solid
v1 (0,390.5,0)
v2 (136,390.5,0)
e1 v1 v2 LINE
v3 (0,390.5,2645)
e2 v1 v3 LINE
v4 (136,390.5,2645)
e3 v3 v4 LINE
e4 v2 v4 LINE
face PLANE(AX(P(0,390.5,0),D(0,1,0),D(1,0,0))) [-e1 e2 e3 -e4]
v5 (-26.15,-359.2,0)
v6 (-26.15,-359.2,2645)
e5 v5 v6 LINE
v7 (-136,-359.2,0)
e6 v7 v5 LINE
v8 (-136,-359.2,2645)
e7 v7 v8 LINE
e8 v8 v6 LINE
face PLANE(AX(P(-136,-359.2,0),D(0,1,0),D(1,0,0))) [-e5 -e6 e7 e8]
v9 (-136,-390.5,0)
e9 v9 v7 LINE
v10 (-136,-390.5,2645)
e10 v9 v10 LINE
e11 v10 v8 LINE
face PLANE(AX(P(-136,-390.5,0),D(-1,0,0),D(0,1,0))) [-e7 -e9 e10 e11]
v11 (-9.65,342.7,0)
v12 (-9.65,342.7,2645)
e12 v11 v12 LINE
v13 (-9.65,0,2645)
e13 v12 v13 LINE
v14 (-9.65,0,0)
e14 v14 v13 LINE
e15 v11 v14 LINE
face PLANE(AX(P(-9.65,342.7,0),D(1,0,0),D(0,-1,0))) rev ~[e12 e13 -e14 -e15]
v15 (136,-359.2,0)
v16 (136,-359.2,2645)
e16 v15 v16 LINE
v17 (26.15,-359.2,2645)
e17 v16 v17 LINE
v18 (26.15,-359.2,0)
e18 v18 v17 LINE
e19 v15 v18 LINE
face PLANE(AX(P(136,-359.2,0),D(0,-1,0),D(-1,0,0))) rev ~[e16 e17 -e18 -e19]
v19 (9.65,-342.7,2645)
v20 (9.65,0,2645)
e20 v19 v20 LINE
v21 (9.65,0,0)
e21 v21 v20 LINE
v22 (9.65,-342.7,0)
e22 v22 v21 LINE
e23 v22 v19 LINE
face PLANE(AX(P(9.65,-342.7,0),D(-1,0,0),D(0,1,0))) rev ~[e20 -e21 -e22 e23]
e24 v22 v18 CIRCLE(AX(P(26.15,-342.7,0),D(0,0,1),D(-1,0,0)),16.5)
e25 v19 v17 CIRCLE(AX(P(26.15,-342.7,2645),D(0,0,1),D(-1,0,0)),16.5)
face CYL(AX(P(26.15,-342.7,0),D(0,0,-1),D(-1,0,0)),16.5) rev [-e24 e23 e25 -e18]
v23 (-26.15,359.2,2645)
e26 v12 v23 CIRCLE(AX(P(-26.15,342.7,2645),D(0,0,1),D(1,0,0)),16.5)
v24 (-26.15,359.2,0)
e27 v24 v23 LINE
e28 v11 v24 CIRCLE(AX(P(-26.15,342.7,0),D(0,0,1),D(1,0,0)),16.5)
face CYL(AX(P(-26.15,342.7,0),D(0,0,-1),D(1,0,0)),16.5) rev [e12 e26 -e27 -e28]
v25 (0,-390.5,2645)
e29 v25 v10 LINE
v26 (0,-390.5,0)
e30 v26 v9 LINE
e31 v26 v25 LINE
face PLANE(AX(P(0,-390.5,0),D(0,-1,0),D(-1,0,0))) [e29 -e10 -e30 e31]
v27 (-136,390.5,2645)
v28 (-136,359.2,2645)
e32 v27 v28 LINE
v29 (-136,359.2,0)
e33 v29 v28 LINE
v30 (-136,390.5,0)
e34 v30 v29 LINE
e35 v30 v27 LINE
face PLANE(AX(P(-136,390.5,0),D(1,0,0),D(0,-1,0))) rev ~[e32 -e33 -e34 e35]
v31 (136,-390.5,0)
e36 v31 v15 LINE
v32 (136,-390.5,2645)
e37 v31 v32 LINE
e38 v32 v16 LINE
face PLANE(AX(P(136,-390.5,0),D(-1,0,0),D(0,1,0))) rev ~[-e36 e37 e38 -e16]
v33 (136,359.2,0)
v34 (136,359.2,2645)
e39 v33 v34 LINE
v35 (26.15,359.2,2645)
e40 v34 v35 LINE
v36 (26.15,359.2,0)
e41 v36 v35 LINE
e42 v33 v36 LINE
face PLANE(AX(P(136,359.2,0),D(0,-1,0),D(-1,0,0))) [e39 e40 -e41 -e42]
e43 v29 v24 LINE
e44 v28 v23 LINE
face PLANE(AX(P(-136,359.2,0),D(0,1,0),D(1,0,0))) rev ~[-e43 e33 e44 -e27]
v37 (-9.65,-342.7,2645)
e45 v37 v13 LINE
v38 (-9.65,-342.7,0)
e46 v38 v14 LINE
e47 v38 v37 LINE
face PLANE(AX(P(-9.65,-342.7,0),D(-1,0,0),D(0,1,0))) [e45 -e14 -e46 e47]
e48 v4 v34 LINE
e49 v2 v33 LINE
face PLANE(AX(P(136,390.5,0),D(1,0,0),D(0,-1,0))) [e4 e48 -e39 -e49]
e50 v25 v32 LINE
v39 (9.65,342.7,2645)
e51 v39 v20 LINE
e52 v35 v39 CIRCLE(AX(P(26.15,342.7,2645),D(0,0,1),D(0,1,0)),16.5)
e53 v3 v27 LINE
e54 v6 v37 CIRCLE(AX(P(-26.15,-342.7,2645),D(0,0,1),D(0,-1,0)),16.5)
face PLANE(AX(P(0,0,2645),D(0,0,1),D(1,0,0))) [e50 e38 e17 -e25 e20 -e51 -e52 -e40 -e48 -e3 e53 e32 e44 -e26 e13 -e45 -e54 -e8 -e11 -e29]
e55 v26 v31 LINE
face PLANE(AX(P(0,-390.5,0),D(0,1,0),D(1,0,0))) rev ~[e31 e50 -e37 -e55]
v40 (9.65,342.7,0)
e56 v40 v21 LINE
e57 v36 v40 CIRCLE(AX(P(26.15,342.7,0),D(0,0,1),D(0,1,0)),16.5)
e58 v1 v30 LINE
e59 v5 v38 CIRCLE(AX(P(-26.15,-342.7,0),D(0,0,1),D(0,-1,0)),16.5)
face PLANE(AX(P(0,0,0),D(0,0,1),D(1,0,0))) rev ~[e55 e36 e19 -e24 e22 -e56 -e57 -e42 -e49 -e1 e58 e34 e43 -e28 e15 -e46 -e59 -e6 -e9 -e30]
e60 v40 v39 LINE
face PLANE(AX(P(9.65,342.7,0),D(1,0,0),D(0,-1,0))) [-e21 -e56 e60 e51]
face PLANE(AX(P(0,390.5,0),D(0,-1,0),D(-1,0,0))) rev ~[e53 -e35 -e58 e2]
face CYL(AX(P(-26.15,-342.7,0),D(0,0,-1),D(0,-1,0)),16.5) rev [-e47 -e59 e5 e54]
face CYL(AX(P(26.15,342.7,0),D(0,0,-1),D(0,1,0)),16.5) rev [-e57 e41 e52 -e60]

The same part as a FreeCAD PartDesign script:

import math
import FreeCAD as App
import Part
import Sketcher

doc = App.newDocument("Part")
params = doc.addObject("Spreadsheet::Sheet", "Params")
for row, (alias, value) in enumerate([
    ("sketch1_radius", "16.5 mm"),
    ("sketch1_height", "31.3 mm"),
    ("pad1_length", "2645 mm"),
], start=1):
    params.set(f"A{row}", alias)
    params.set(f"B{row}", "=" + value)
    params.setAlias(f"B{row}", alias)

body = doc.addObject("PartDesign::Body", "Body")

# Sketch on XY plane
sketch1 = doc.addObject("Sketcher::SketchObject", "Sketch")
body.addObject(sketch1)
sketch1.AttachmentSupport = (doc.XY_Plane, [""])
sketch1.MapMode = "FlatFace"
sketch1.addGeometry([
    Part.LineSegment(App.Vector(-136, -359, 0), App.Vector(-136, -390, 0)),  # 0
    Part.LineSegment(App.Vector(-136, -390, 0), App.Vector(136, -390, 0)),  # 1
    Part.LineSegment(App.Vector(136, -390, 0), App.Vector(136, -359, 0)),  # 2
    Part.LineSegment(App.Vector(136, -359, 0), App.Vector(26, -359, 0)),  # 3
    Part.ArcOfCircle(Part.Circle(App.Vector(26, -343, 0), App.Vector(0, 0, 1), 16), math.radians(180), math.radians(270)),  # 4
    Part.LineSegment(App.Vector(10, -343, 0), App.Vector(10, 343, 0)),  # 5
    Part.ArcOfCircle(Part.Circle(App.Vector(26, 343, 0), App.Vector(0, 0, 1), 16), math.radians(90), math.radians(180)),  # 6
    Part.LineSegment(App.Vector(26, 359, 0), App.Vector(136, 359, 0)),  # 7
    Part.LineSegment(App.Vector(136, 359, 0), App.Vector(136, 390, 0)),  # 8
    Part.LineSegment(App.Vector(136, 390, 0), App.Vector(-136, 390, 0)),  # 9
    Part.LineSegment(App.Vector(-136, 390, 0), App.Vector(-136, 359, 0)),  # 10
    Part.LineSegment(App.Vector(-136, 359, 0), App.Vector(-26, 359, 0)),  # 11
    Part.ArcOfCircle(Part.Circle(App.Vector(-26, 343, 0), App.Vector(0, 0, 1), 16), math.radians(0), math.radians(90)),  # 12
    Part.LineSegment(App.Vector(-10, 343, 0), App.Vector(-10, -343, 0)),  # 13
    Part.ArcOfCircle(Part.Circle(App.Vector(-26, -343, 0), App.Vector(0, 0, 1), 16), math.radians(-90), math.radians(0)),  # 14
    Part.LineSegment(App.Vector(-26, -359, 0), App.Vector(-136, -359, 0)),  # 15
], False)
sketch1.addConstraint([
    Sketcher.Constraint("Coincident", 0, 2, 1, 1),
    Sketcher.Constraint("Coincident", 1, 2, 2, 1),
    Sketcher.Constraint("Coincident", 2, 2, 3, 1),
    Sketcher.Constraint("Tangent", 3, 2, 4, 2),
    Sketcher.Constraint("Tangent", 4, 1, 5, 1),
    Sketcher.Constraint("Tangent", 5, 2, 6, 2),
    Sketcher.Constraint("Tangent", 6, 1, 7, 1),
    Sketcher.Constraint("Coincident", 7, 2, 8, 1),
    Sketcher.Constraint("Coincident", 8, 2, 9, 1),
    Sketcher.Constraint("Coincident", 9, 2, 10, 1),
    Sketcher.Constraint("Coincident", 10, 2, 11, 1),
    Sketcher.Constraint("Tangent", 11, 2, 12, 2),
    Sketcher.Constraint("Tangent", 12, 1, 13, 1),
    Sketcher.Constraint("Tangent", 13, 2, 14, 2),
    Sketcher.Constraint("Tangent", 14, 1, 15, 1),
    Sketcher.Constraint("Coincident", 15, 2, 0, 1),
    Sketcher.Constraint("Vertical", 0),
    Sketcher.Constraint("Horizontal", 1),
    Sketcher.Constraint("Vertical", 2),
    Sketcher.Constraint("Horizontal", 3),
    Sketcher.Constraint("Vertical", 5),
    Sketcher.Constraint("Horizontal", 7),
    Sketcher.Constraint("Vertical", 8),
    Sketcher.Constraint("Horizontal", 9),
    Sketcher.Constraint("Vertical", 10),
    Sketcher.Constraint("Horizontal", 11),
    Sketcher.Constraint("Vertical", 13),
    Sketcher.Constraint("Horizontal", 15),
    Sketcher.Constraint("Equal", 4, 6),
    Sketcher.Constraint("Equal", 6, 12),
    Sketcher.Constraint("Equal", 12, 14),
    Sketcher.Constraint("Symmetric", 4, 3, 12, 3, -1, 1),
    Sketcher.Constraint("Symmetric", 0, 2, 8, 2, -1, 1),
    Sketcher.Constraint("Symmetric", 7, 2, 10, 2, -2),
    Sketcher.Constraint("Symmetric", 2, 2, 15, 2, -2),
    Sketcher.Constraint("Radius", 4, 16.5),
    Sketcher.Constraint("DistanceY", 0, 2, 0, 1, 31.3),
    Sketcher.Constraint("DistanceX", 0, 2, -1, 1, 136.0),
    Sketcher.Constraint("DistanceY", 0, 2, -1, 1, 390.5),
    Sketcher.Constraint("DistanceX", -1, 1, 4, 1, 9.65),
])
sketch1.setExpression("Constraints[35]", "Params.sketch1_radius")
sketch1.setExpression("Constraints[36]", "Params.sketch1_height")
pad1 = doc.addObject("PartDesign::Pad", "Pad")
body.addObject(pad1)
pad1.Profile = sketch1
pad1.setExpression("Length", "Params.pad1_length")

doc.recompute()
